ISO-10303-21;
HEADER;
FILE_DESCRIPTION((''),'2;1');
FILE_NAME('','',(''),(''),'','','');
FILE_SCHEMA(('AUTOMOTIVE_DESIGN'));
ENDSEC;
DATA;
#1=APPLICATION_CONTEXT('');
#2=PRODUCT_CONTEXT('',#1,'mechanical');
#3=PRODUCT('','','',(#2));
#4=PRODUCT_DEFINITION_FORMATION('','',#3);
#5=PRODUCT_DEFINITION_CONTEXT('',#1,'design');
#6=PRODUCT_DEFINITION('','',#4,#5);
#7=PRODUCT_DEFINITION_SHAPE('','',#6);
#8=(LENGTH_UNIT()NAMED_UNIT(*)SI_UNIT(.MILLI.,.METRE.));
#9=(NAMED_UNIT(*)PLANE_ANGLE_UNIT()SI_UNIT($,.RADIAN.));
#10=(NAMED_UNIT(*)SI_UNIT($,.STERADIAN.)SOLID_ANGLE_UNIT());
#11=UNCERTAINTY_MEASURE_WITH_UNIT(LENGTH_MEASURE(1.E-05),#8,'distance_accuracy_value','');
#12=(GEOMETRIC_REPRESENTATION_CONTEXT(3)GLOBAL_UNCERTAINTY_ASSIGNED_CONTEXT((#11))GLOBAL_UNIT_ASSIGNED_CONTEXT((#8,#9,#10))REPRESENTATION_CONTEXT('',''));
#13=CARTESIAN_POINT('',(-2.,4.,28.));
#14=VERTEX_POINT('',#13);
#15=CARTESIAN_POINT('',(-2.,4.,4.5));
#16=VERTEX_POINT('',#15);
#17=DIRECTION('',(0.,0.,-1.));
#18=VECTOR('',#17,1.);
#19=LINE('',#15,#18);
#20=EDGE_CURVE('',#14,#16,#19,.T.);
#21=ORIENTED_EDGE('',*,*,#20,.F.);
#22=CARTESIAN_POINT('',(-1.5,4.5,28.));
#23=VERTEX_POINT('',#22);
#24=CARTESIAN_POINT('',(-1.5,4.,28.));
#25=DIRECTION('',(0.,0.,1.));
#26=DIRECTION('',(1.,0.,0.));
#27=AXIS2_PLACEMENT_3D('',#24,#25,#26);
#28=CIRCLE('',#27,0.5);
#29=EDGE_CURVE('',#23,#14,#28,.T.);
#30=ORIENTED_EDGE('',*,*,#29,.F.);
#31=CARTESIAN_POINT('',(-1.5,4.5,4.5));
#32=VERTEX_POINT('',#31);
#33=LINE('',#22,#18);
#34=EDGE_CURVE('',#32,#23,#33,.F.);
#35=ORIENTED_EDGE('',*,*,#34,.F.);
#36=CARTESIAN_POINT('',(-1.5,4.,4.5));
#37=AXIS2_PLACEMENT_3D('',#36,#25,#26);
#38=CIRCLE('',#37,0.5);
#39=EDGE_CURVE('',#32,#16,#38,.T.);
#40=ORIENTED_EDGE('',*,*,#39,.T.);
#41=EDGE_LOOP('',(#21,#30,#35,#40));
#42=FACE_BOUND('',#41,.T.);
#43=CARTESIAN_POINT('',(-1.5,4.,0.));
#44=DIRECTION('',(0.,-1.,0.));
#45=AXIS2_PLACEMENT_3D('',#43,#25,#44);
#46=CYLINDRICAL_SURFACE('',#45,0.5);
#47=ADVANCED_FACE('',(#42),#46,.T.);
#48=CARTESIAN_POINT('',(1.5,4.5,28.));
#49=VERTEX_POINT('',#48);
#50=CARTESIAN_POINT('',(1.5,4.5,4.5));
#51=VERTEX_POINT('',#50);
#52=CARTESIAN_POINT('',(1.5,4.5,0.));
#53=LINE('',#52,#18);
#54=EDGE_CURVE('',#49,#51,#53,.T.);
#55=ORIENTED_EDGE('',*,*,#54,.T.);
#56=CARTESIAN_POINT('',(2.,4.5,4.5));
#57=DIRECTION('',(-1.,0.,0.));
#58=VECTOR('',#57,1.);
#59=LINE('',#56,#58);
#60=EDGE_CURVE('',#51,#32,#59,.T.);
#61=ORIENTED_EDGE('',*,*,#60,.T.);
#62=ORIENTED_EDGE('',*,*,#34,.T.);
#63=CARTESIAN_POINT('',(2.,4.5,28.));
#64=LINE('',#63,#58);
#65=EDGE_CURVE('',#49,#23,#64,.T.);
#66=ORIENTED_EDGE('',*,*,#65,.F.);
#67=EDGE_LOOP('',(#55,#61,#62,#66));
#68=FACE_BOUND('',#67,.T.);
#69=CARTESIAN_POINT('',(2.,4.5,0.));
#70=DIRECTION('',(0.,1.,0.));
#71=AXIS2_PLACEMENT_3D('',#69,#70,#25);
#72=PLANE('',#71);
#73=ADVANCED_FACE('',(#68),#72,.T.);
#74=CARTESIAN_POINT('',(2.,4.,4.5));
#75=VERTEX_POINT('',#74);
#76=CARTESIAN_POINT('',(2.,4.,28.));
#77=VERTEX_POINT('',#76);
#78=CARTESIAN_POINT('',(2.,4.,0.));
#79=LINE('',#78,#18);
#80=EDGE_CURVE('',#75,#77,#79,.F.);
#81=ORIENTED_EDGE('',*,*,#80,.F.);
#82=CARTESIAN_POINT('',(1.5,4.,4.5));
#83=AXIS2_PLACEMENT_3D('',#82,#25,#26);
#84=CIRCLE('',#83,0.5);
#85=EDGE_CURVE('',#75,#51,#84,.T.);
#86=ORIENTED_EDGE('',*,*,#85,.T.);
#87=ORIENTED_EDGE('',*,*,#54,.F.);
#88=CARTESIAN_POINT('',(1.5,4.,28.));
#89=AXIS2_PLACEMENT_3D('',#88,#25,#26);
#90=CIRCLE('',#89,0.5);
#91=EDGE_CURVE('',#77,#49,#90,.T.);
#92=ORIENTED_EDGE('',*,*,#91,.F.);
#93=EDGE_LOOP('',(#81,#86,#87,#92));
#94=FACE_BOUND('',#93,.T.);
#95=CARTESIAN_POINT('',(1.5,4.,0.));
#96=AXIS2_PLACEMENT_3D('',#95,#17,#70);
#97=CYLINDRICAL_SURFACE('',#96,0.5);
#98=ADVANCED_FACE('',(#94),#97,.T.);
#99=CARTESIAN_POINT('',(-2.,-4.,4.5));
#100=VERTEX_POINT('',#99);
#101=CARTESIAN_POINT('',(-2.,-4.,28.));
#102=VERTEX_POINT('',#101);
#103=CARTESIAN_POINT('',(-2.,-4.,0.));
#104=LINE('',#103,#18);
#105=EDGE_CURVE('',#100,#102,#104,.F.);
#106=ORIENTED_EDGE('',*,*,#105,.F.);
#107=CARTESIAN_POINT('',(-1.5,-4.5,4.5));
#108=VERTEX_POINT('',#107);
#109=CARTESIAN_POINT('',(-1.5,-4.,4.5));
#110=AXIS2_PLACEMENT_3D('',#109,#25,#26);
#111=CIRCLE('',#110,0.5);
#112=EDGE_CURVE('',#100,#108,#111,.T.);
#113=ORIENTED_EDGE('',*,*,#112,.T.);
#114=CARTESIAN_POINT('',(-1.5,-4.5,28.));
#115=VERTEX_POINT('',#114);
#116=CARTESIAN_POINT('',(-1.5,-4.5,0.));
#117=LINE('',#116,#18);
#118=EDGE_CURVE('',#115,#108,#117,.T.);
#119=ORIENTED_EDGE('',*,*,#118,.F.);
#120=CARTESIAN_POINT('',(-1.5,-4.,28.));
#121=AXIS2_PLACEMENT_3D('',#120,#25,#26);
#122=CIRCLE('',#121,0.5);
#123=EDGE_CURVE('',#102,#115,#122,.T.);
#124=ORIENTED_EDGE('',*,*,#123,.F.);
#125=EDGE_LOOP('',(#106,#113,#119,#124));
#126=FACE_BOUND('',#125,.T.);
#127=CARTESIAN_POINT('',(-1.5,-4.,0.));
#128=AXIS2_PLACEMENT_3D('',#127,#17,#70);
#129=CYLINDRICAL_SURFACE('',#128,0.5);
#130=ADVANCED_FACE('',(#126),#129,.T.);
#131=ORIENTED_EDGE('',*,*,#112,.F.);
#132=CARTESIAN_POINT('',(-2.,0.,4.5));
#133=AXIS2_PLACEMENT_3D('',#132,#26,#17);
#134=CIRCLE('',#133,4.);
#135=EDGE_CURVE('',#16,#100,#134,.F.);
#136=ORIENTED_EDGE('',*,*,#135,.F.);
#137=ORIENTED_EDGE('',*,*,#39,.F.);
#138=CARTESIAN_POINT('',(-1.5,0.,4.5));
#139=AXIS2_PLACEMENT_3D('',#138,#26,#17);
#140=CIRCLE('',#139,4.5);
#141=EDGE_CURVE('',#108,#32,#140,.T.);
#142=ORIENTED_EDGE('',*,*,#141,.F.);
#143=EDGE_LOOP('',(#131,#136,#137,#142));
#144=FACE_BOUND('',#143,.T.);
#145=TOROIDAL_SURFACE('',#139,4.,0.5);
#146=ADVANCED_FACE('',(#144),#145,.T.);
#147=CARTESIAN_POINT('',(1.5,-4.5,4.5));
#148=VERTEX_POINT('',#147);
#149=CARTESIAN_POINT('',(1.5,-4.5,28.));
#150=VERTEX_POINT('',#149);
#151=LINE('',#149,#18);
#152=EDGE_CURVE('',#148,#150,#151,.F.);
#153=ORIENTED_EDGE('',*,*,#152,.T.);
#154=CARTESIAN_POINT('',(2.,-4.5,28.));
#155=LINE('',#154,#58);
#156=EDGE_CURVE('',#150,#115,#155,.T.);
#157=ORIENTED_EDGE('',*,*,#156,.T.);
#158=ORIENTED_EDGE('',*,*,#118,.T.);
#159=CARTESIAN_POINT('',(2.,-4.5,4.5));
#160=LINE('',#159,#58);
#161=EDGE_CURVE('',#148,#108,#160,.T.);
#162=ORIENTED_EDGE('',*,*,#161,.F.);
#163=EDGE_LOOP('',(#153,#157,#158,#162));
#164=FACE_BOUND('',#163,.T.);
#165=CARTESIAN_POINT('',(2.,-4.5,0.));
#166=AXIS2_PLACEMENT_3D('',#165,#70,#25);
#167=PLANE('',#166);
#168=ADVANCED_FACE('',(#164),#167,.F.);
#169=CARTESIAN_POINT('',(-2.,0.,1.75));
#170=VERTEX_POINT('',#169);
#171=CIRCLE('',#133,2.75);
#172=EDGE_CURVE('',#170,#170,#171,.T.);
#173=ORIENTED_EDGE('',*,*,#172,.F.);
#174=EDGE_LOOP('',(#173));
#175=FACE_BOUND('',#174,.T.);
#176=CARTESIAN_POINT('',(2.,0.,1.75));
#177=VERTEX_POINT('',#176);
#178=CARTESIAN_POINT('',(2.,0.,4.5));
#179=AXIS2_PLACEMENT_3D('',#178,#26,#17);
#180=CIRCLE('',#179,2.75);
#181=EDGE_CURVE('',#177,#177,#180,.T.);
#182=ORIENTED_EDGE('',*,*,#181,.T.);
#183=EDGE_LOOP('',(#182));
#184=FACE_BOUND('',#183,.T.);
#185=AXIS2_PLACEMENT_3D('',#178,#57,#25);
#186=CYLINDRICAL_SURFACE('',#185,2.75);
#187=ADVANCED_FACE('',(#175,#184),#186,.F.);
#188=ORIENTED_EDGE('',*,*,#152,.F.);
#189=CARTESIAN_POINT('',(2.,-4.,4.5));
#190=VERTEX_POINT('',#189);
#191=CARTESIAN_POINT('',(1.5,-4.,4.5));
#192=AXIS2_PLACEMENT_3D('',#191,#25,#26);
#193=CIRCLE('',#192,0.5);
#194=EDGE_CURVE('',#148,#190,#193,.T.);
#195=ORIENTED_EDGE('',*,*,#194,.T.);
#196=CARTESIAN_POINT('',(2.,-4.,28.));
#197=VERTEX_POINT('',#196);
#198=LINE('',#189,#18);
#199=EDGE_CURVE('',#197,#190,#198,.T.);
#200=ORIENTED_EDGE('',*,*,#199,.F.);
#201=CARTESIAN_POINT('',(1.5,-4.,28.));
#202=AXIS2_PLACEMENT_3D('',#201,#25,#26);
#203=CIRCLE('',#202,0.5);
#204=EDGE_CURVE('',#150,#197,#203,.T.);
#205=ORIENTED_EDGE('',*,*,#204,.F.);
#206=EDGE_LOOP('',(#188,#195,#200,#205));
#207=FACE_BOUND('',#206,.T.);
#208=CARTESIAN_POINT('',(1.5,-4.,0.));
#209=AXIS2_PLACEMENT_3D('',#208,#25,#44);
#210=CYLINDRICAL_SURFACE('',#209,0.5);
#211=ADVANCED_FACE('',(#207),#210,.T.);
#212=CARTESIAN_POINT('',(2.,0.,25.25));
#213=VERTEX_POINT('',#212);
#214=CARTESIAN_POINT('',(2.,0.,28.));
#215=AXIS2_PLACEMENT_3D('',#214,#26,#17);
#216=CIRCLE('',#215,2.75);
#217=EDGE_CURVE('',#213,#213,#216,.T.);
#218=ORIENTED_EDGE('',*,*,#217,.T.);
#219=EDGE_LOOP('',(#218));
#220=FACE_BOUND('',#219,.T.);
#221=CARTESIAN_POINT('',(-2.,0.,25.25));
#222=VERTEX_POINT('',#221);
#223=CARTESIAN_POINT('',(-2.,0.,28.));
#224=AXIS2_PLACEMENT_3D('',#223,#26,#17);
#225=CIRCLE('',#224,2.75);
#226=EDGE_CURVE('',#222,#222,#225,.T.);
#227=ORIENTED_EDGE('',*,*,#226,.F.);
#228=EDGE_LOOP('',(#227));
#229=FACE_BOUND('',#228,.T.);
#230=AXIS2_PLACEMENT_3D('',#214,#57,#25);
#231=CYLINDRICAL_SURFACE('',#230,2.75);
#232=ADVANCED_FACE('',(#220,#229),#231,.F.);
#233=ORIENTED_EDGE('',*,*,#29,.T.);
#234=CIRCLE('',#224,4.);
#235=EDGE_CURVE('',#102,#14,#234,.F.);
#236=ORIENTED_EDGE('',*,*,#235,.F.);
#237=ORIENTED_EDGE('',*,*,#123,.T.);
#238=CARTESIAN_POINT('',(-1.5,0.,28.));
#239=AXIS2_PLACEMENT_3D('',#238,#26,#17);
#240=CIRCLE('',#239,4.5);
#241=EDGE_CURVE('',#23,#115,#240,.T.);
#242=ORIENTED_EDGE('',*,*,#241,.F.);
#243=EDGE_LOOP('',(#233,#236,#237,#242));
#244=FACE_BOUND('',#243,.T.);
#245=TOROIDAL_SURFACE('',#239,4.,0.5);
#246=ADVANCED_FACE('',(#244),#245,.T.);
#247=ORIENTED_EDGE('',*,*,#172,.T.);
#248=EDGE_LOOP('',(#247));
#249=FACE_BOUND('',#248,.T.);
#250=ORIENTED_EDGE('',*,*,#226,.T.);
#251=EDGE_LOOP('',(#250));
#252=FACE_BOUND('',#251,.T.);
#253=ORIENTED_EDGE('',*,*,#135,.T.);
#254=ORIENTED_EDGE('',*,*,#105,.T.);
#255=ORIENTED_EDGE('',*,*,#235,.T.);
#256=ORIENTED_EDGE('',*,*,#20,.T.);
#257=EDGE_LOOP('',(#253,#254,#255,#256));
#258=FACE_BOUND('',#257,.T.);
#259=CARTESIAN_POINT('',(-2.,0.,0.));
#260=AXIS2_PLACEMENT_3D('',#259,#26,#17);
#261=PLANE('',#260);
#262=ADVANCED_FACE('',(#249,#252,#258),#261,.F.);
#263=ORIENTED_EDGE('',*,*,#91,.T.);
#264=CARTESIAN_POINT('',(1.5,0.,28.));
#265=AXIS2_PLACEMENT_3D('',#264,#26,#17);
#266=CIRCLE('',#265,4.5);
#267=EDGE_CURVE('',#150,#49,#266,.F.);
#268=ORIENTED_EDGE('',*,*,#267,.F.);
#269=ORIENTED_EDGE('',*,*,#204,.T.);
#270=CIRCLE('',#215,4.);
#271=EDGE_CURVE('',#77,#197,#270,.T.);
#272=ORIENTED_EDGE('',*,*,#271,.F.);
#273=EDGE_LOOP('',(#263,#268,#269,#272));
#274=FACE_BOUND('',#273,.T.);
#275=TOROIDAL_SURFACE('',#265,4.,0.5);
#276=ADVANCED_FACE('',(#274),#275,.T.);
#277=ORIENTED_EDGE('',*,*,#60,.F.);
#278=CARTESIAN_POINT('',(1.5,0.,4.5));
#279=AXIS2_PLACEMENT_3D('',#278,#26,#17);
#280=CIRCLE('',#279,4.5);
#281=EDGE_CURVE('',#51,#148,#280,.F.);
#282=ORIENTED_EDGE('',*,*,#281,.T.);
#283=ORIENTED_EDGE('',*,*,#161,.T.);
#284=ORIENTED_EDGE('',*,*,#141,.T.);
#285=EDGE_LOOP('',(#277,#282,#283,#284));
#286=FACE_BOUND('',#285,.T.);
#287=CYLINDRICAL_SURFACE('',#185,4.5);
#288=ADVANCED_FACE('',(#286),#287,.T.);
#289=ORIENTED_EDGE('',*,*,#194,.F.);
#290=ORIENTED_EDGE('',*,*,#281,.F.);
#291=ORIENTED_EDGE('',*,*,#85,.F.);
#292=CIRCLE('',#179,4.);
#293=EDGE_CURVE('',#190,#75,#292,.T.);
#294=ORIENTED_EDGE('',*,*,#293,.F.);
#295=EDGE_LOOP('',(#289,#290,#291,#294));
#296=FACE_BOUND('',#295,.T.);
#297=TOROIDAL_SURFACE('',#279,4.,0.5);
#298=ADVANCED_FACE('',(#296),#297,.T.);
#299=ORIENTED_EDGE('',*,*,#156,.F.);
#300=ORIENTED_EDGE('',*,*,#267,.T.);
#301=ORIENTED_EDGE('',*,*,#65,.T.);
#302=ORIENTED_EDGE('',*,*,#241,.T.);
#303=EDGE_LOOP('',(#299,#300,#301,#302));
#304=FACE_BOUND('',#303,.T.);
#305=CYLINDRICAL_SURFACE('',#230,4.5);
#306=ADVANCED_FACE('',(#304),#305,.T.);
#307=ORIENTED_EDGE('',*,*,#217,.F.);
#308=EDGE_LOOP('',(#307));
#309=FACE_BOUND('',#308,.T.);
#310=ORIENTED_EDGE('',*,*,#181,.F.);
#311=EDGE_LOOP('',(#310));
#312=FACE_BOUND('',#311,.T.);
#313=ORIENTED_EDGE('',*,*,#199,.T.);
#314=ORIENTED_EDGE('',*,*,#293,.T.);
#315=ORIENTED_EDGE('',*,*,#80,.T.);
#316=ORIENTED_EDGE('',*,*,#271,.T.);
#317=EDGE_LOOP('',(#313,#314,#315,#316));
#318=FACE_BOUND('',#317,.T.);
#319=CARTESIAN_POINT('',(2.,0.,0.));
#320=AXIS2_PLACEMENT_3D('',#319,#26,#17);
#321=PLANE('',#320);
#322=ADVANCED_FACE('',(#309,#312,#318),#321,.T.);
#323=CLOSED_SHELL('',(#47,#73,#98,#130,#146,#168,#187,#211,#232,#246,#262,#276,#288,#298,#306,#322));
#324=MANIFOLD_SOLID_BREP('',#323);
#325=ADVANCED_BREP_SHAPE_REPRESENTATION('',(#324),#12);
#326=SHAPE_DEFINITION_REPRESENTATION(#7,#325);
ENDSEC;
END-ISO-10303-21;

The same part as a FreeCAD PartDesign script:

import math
import FreeCAD as App
import Part
import Sketcher
from FreeCAD import Vector
Q = App.Units.Quantity


def edges_at(feature, points):
    """Names of the edges that pass closest to the given points."""
    edges = feature.Shape.Edges
    near = lambda p: min(range(len(edges)), key=lambda i: edges[i].distToShape(Part.Vertex(*p))[0])
    return sorted({f"Edge{near(p) + 1}" for p in points})

doc = App.newDocument("Part")
body = doc.addObject("PartDesign::Body", "Body")

# Sketch on YZ plane
sketch1 = body.newObject("Sketcher::SketchObject", "Sketch")
sketch1.AttachmentSupport = (doc.getObject("YZ_Plane"), [""])
sketch1.MapMode = "FlatFace"
sketch1.addGeometry([
    Part.ArcOfCircle(Part.Circle(Vector(0, 28, 0), Vector(0, 0, 1), 4.5), math.radians(90), math.radians(180)),  # 0
    Part.LineSegment(Vector(-4.5, 28, 0), Vector(-4.5, 4.5, 0)),  # 1
    Part.ArcOfCircle(Part.Circle(Vector(0, 4.5, 0), Vector(0, 0, 1), 4.5), math.radians(-180), math.radians(-90)),  # 2
    Part.ArcOfCircle(Part.Circle(Vector(0, 4.5, 0), Vector(0, 0, 1), 4.5), math.radians(-90), math.radians(0)),  # 3
    Part.LineSegment(Vector(4.5, 4.5, 0), Vector(4.5, 28, 0)),  # 4
    Part.ArcOfCircle(Part.Circle(Vector(0, 28, 0), Vector(0, 0, 1), 4.5), math.radians(0), math.radians(90)),  # 5
    Part.Circle(Vector(0, 4.5, 0), Vector(0, 0, 1), 2.75),  # 6
    Part.Circle(Vector(0, 28, 0), Vector(0, 0, 1), 2.75),  # 7
], False)
sketch1.addConstraint([
    Sketcher.Constraint("Tangent", 0, 2, 1, 1),
    Sketcher.Constraint("Tangent", 1, 2, 2, 1),
    Sketcher.Constraint("Tangent", 2, 2, 3, 1),
    Sketcher.Constraint("Tangent", 3, 2, 4, 1),
    Sketcher.Constraint("Tangent", 4, 2, 5, 1),
    Sketcher.Constraint("Tangent", 5, 2, 0, 1),
    Sketcher.Constraint("Vertical", 1),
    Sketcher.Constraint("Vertical", 4),
    Sketcher.Constraint("Coincident", 2, 2, -1, 1),
    Sketcher.Constraint("Coincident", 6, 3, 2, 3),
    Sketcher.Constraint("Coincident", 7, 3, 0, 3),
    Sketcher.Constraint("Equal", 0, 2),
    Sketcher.Constraint("Equal", 2, 3),
    Sketcher.Constraint("Equal", 6, 7),
    Sketcher.Constraint("PointOnObject", 0, 3, -2),
    Sketcher.Constraint("PointOnObject", 5, 2, -2),
    Sketcher.Constraint("Diameter", 6, Q("5.5 mm")),
    Sketcher.Constraint("Radius", 0, Q("4.5 mm")),
    Sketcher.Constraint("DistanceY", 1, 2, 1, 1, Q("23.5 mm")),
])
pad1 = body.newObject("PartDesign::Pad", "Pad")
pad1.Profile = sketch1
pad1.Length = 4
pad1.Midplane = True
doc.recompute()

fillet = body.newObject("PartDesign::Fillet", "Fillet")
fillet.Base = (pad1, edges_at(pad1, [
    (-2, -4.5, 16.25),
    (2, -4.5, 16.25),
    (2, 3.182, 1.318),
    (2, 4.5, 16.25),
    (2, -3.182, 31.182),
    (-2, -3.182, 31.182),
    (-2, 4.5, 16.25),
    (-2, -3.182, 1.318),
]))
fillet.Radius = 0.5

doc.recompute()
